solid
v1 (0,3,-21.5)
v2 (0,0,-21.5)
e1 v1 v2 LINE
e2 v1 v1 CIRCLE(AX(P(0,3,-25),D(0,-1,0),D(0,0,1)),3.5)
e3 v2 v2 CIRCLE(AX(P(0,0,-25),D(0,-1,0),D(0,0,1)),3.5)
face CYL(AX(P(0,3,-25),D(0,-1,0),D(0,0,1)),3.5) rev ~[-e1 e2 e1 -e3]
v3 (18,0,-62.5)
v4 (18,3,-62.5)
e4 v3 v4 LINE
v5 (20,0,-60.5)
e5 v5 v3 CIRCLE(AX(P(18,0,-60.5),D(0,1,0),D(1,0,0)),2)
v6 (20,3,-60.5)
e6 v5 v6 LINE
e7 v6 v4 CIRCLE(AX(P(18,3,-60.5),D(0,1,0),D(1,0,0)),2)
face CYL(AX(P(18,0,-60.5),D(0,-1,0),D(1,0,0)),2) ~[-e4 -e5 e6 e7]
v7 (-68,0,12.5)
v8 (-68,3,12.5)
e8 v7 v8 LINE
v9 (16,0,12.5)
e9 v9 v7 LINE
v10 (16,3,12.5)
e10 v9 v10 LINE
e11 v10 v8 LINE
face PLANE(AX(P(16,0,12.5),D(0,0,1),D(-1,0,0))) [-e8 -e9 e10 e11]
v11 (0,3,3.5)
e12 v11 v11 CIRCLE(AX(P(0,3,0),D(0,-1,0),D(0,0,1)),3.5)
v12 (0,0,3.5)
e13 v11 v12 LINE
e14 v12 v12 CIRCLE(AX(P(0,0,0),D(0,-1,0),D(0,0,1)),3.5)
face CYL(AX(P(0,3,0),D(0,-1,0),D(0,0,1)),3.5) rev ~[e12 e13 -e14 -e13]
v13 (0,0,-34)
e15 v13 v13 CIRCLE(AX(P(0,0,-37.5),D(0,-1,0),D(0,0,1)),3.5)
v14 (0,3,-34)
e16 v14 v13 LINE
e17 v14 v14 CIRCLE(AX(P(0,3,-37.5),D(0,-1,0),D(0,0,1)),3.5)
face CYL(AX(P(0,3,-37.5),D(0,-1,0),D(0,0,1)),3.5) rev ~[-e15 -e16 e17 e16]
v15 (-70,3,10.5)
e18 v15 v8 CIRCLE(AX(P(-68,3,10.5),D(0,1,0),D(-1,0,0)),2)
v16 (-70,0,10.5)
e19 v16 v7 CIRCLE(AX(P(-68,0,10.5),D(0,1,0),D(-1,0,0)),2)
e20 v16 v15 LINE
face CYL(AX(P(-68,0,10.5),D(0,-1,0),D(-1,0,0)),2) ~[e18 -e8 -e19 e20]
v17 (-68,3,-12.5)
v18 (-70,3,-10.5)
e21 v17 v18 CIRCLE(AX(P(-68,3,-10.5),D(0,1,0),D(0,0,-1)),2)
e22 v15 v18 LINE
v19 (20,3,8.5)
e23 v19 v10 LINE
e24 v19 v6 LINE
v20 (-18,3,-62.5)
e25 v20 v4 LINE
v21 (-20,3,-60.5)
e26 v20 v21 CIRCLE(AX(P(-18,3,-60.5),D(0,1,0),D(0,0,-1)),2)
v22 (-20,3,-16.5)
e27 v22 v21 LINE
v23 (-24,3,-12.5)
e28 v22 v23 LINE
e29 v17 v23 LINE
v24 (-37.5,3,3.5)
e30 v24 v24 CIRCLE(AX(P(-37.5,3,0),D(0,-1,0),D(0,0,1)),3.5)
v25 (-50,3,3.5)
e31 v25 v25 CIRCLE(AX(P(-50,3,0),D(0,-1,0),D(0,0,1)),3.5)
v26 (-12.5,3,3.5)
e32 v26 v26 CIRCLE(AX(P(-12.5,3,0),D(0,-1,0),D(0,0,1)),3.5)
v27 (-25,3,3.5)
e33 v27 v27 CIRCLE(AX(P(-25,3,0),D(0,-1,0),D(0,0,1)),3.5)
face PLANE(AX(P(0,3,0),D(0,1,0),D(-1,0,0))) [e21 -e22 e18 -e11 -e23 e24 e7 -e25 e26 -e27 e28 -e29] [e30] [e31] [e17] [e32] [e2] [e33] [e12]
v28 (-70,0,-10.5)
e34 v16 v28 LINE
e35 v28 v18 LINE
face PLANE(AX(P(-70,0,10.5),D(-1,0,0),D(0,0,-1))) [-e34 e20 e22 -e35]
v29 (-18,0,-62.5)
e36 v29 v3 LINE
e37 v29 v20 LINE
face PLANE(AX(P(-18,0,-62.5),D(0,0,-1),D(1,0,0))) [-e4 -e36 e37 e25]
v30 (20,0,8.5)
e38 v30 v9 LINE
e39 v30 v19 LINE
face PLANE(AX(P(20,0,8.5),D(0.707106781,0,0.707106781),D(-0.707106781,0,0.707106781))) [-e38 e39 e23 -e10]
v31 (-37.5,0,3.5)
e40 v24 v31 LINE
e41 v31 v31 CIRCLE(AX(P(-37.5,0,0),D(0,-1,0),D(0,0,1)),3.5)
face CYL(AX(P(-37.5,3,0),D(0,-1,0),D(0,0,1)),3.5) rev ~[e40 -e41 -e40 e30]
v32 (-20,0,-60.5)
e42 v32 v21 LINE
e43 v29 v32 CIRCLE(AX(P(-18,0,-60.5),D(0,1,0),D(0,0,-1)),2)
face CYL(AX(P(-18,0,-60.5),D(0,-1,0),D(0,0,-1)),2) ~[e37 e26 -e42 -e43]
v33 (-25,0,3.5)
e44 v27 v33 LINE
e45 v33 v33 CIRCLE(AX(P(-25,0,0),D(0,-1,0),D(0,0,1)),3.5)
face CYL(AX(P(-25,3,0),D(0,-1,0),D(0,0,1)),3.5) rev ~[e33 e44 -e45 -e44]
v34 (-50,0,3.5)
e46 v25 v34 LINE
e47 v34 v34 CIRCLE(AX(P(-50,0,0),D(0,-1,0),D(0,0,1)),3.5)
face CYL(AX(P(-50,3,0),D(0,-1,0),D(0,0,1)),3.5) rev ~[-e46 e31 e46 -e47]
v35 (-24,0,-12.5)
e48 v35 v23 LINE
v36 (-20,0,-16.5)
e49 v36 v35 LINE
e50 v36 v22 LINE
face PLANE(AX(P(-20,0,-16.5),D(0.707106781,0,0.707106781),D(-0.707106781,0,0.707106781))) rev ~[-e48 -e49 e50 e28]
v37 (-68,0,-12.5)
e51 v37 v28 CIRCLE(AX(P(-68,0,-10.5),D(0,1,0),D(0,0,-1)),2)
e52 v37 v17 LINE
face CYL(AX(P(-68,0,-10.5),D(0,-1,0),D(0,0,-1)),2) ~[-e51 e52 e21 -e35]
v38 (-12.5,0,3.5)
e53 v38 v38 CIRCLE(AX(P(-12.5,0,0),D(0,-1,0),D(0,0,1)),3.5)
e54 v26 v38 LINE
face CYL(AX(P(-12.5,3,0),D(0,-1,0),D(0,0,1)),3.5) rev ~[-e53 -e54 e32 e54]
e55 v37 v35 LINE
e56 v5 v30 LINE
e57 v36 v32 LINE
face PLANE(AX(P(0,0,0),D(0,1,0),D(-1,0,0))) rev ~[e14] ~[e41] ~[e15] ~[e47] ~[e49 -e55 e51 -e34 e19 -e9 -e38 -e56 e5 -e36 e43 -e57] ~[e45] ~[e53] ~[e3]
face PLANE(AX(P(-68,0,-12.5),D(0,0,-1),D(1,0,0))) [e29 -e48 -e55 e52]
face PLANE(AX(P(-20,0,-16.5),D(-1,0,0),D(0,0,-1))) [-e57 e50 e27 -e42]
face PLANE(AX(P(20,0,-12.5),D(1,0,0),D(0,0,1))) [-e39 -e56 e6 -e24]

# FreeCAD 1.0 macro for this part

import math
import FreeCAD as App
import Part
import Sketcher

V = App.Vector

doc = App.newDocument("Part")
body = doc.addObject("PartDesign::Body", "Body")

sketch1 = body.newObject("Sketcher::SketchObject", "Sketch")
sketch1.AttachmentSupport = (doc.getObject("XZ_Plane"), [""])
sketch1.MapMode = "FlatFace"
sketch1.addGeometry(Part.LineSegment(V(-68, 12.5, 0), V(16, 12.5, 0)), False)
sketch1.addGeometry(Part.LineSegment(V(16, 12.5, 0), V(20, 8.5, 0)), False)
sketch1.addGeometry(Part.LineSegment(V(20, 8.5, 0), V(20, -60.5, 0)), False)
sketch1.addGeometry(Part.ArcOfCircle(Part.Circle(V(18, -60.5, 0), V(0, 0, 1), 2), math.radians(-90), math.radians(0)), False)
sketch1.addGeometry(Part.LineSegment(V(18, -62.5, 0), V(-18, -62.5, 0)), False)
sketch1.addGeometry(Part.ArcOfCircle(Part.Circle(V(-18, -60.5, 0), V(0, 0, 1), 2), math.radians(180), math.radians(270)), False)
sketch1.addGeometry(Part.LineSegment(V(-20, -60.5, 0), V(-20, -16.5, 0)), False)
sketch1.addGeometry(Part.LineSegment(V(-20, -16.5, 0), V(-24, -12.5, 0)), False)
sketch1.addGeometry(Part.LineSegment(V(-24, -12.5, 0), V(-68, -12.5, 0)), False)
sketch1.addGeometry(Part.ArcOfCircle(Part.Circle(V(-68, -10.5, 0), V(0, 0, 1), 2), math.radians(180), math.radians(270)), False)
sketch1.addGeometry(Part.LineSegment(V(-70, -10.5, 0), V(-70, 10.5, 0)), False)
sketch1.addGeometry(Part.ArcOfCircle(Part.Circle(V(-68, 10.5, 0), V(0, 0, 1), 2), math.radians(90), math.radians(180)), False)
sketch1.addConstraint(Sketcher.Constraint("Coincident", 0, 2, 1, 1))
sketch1.addConstraint(Sketcher.Constraint("Coincident", 1, 2, 2, 1))
sketch1.addConstraint(Sketcher.Constraint("Tangent", 2, 2, 3, 2))
sketch1.addConstraint(Sketcher.Constraint("Tangent", 3, 1, 4, 1))
sketch1.addConstraint(Sketcher.Constraint("Tangent", 4, 2, 5, 2))
sketch1.addConstraint(Sketcher.Constraint("Tangent", 5, 1, 6, 1))
sketch1.addConstraint(Sketcher.Constraint("Coincident", 6, 2, 7, 1))
sketch1.addConstraint(Sketcher.Constraint("Coincident", 7, 2, 8, 1))
sketch1.addConstraint(Sketcher.Constraint("Tangent", 8, 2, 9, 2))
sketch1.addConstraint(Sketcher.Constraint("Tangent", 9, 1, 10, 1))
sketch1.addConstraint(Sketcher.Constraint("Tangent", 10, 2, 11, 2))
sketch1.addConstraint(Sketcher.Constraint("Tangent", 11, 1, 0, 1))
sketch1.addConstraint(Sketcher.Constraint("Horizontal", 0))
sketch1.addConstraint(Sketcher.Constraint("Vertical", 2))
sketch1.addConstraint(Sketcher.Constraint("Horizontal", 4))
sketch1.addConstraint(Sketcher.Constraint("Vertical", 6))
sketch1.addConstraint(Sketcher.Constraint("Horizontal", 8))
sketch1.addConstraint(Sketcher.Constraint("Vertical", 10))
sketch1.addConstraint(Sketcher.Constraint("Equal", 3, 5))
sketch1.addConstraint(Sketcher.Constraint("Equal", 5, 9))
sketch1.addConstraint(Sketcher.Constraint("Equal", 9, 11))
sketch1.addConstraint(Sketcher.Constraint("Parallel", 1, 7))
sketch1.addConstraint(Sketcher.Constraint("Equal", 8, 6))
sketch1.addConstraint(Sketcher.Constraint("Equal", 1, 7))
sketch1.addConstraint(Sketcher.Constraint("Radius", 3, 2.0))
sketch1.addConstraint(Sketcher.Constraint("DistanceX", 9, 3, 5, 3, 50.0))
sketch1.addConstraint(Sketcher.Constraint("DistanceY", 5, 3, 9, 3, 50.0))
sketch1.addConstraint(Sketcher.Constraint("DistanceX", 0, 2, 3, 3, 2.0))
sketch1.addConstraint(Sketcher.Constraint("DistanceX", 5, 1, 2, 2, 40.0))
sketch1.addConstraint(Sketcher.Constraint("DistanceY", 6, 2, 1, 2, 25.0))
sketch1.addConstraint(Sketcher.Constraint("DistanceX", -1, 1, 3, 3, 18.0))
sketch1.addConstraint(Sketcher.Constraint("DistanceY", 3, 3, -1, 1, 60.5))
pad1 = body.newObject("PartDesign::Pad", "Pad")
pad1.Profile = sketch1
pad1.Length = 3
pad1.Reversed = True

sketch2 = body.newObject("Sketcher::SketchObject", "Sketch001")
sketch2.AttachmentSupport = (doc.getObject("XZ_Plane"), [""])
sketch2.MapMode = "FlatFace"
sketch2.AttachmentOffset = App.Placement(V(0, 0, -3), App.Rotation())
sketch2.addGeometry(Part.Circle(V(0, 0, 0), V(0, 0, 1), 3.5), False)
sketch2.addGeometry(Part.Circle(V(0, -25, 0), V(0, 0, 1), 3.5), False)
sketch2.addGeometry(Part.Circle(V(0, -37.5, 0), V(0, 0, 1), 3.5), False)
sketch2.addGeometry(Part.Circle(V(-50, 0, 0), V(0, 0, 1), 3.5), False)
sketch2.addGeometry(Part.Circle(V(-37.5, 0, 0), V(0, 0, 1), 3.5), False)
sketch2.addGeometry(Part.Circle(V(-25, 0, 0), V(0, 0, 1), 3.5), False)
sketch2.addGeometry(Part.Circle(V(-12.5, 0, 0), V(0, 0, 1), 3.5), False)
sketch2.addConstraint(Sketcher.Constraint("Coincident", 0, 3, -1, 1))
sketch2.addConstraint(Sketcher.Constraint("Equal", 0, 1))
sketch2.addConstraint(Sketcher.Constraint("Equal", 1, 2))
sketch2.addConstraint(Sketcher.Constraint("Equal", 2, 3))
sketch2.addConstraint(Sketcher.Constraint("Equal", 3, 4))
sketch2.addConstraint(Sketcher.Constraint("Equal", 4, 5))
sketch2.addConstraint(Sketcher.Constraint("Equal", 5, 6))
sketch2.addConstraint(Sketcher.Constraint("PointOnObject", 1, 3, -2))
sketch2.addConstraint(Sketcher.Constraint("PointOnObject", 2, 3, -2))
sketch2.addConstraint(Sketcher.Constraint("PointOnObject", 3, 3, -1))
sketch2.addConstraint(Sketcher.Constraint("PointOnObject", 4, 3, -1))
sketch2.addConstraint(Sketcher.Constraint("PointOnObject", 5, 3, -1))
sketch2.addConstraint(Sketcher.Constraint("PointOnObject", 6, 3, -1))
sketch2.addConstraint(Sketcher.Constraint("Diameter", 0, 7.0))
sketch2.addConstraint(Sketcher.Constraint("DistanceY", 1, 3, -1, 1, 25.0))
sketch2.addConstraint(Sketcher.Constraint("DistanceX", 3, 3, -1, 1, 50.0))
sketch2.addConstraint(Sketcher.Constraint("DistanceX", 5, 3, -1, 1, 25.0))
sketch2.addConstraint(Sketcher.Constraint("DistanceX", 4, 3, 6, 3, 25.0))
sketch2.addConstraint(Sketcher.Constraint("DistanceY", 2, 3, -1, 1, 37.5))
sketch2.addConstraint(Sketcher.Constraint("DistanceX", 4, 3, -1, 1, 37.5))
doc.recompute()
hole = body.newObject("PartDesign::Hole", "Hole")
hole.Profile = sketch2
hole.ThreadType = "None"
hole.Diameter = 7
hole.DepthType = "Dimension"
hole.Depth = 8
hole.DrillPoint = "Flat"
hole.Reversed = True

doc.recompute()
